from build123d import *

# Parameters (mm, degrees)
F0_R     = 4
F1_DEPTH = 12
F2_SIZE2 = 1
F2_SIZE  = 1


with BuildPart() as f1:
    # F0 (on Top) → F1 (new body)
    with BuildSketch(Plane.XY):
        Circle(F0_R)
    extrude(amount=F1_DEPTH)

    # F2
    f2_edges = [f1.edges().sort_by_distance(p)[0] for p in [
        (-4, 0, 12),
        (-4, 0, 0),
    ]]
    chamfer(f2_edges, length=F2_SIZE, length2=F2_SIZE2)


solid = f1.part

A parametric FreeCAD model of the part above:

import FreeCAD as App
import Part
import Sketcher

V = App.Vector


def edges_at(feature, points):
    """Names of the edges that pass closest to the given points."""
    edges = feature.Shape.Edges
    near = lambda p: min(range(len(edges)), key=lambda i: edges[i].distToShape(Part.Vertex(*p))[0])
    return sorted({f"Edge{near(p) + 1}" for p in points})

doc = App.newDocument("Part")
body = doc.addObject("PartDesign::Body", "Body")

# Sketch on XY plane
sketch1 = body.newObject("Sketcher::SketchObject", "Sketch")
sketch1.AttachmentSupport = (doc.getObject("XY_Plane"), [""])
sketch1.MapMode = "FlatFace"
sketch1.addGeometry(Part.Circle(V(0, 0, 0), V(0, 0, 1), 4), False)
sketch1.addConstraint(Sketcher.Constraint("Coincident", 0, 3, -1, 1))
sketch1.addConstraint(Sketcher.Constraint("Diameter", 0, 8.0))
pad1 = body.newObject("PartDesign::Pad", "Pad")
pad1.Profile = sketch1
pad1.Length = 12
doc.recompute()

chamfer = body.newObject("PartDesign::Chamfer", "Chamfer")
chamfer.Base = (pad1, edges_at(pad1, [(-4, 0, 12), (-4, 0, 0)]))
chamfer.ChamferType = "Two distances"
chamfer.Size = 1
chamfer.Size2 = 1

doc.recompute()
